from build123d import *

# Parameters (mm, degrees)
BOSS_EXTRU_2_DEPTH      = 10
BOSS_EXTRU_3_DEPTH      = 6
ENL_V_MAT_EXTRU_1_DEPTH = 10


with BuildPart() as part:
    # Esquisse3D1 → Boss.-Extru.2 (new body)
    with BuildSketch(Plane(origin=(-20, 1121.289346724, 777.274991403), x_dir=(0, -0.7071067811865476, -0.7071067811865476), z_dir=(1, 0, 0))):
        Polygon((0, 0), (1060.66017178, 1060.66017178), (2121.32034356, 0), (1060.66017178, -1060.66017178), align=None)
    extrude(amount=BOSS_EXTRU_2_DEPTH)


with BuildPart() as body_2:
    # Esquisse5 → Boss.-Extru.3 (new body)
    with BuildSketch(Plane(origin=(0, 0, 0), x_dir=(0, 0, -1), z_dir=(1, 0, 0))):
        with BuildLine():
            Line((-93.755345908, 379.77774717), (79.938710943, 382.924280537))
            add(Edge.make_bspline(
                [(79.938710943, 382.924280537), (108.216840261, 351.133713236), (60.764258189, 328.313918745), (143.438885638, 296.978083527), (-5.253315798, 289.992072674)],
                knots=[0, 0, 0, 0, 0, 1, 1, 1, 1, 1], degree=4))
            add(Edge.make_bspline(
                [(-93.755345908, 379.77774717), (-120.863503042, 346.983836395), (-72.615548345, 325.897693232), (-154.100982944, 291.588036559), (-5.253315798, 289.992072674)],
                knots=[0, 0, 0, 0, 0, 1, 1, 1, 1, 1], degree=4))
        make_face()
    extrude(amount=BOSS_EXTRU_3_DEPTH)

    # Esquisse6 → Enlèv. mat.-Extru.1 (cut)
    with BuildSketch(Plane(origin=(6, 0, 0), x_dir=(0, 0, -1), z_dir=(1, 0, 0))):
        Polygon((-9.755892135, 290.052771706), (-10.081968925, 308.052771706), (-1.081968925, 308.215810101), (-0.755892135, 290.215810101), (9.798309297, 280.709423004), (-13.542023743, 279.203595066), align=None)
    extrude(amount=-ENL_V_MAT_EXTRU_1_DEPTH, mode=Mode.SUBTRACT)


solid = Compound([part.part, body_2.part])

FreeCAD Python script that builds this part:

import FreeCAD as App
import Part
import Sketcher
from FreeCAD import Vector
Q = App.Units.Quantity


def add_polygon(sketch, points):
    """Adds a closed chain of lines whose ends are joined by coincident constraints."""
    first, n = sketch.GeometryCount, len(points)
    for a, b in zip(points, points[1:] + points[:1]):
        sketch.addGeometry(Part.LineSegment(App.Vector(*a, 0), App.Vector(*b, 0)), False)
    for i in range(n):
        sketch.addConstraint(Sketcher.Constraint("Coincident", first + i, 2, first + (i + 1) % n, 1))

doc = App.newDocument("Part")
body = doc.addObject("PartDesign::Body", "Body")

sketch1 = doc.addObject("Sketcher::SketchObject", "Sketch")
body.addObject(sketch1)
sketch1.AttachmentSupport = (doc.YZ_Plane, [""])
sketch1.MapMode = "FlatFace"
sketch1.AttachmentOffset = App.Placement(Vector(0, 0, -20), App.Rotation())
add_polygon(sketch1, [(1121.289347, -722.725008), (1121.289347, 777.274991), (-378.710653, 777.274991), (-378.710653, -722.725008)])
sketch1.addConstraint(Sketcher.Constraint("Vertical", 0))
sketch1.addConstraint(Sketcher.Constraint("Horizontal", 1))
sketch1.addConstraint(Sketcher.Constraint("Vertical", 2))
sketch1.addConstraint(Sketcher.Constraint("Horizontal", 3))
sketch1.addConstraint(Sketcher.Constraint("Equal", 3, 0))
sketch1.addConstraint(Sketcher.Constraint("DistanceX", 1, 2, 1, 1, 1500.0))
sketch1.addConstraint(Sketcher.Constraint("DistanceY", -1, 1, 0, 2, 777.274991))
sketch1.addConstraint(Sketcher.Constraint("DistanceX", -1, 1, 0, 2, 1121.289347))
pad1 = doc.addObject("PartDesign::Pad", "Pad")
body.addObject(pad1)
pad1.Profile = sketch1
pad1.Length = 10
body2 = doc.addObject("PartDesign::Body", "Body001")

sketch2 = doc.addObject("Sketcher::SketchObject", "Sketch001")
body2.addObject(sketch2)
sketch2.AttachmentSupport = (doc.getObject("YZ_Plane001"), [""])
sketch2.MapMode = "FlatFace"
sketch2.addGeometry(Part.LineSegment(Vector(382.924281, -79.938711, 0), Vector(379.777747, 93.755346, 0)), False)
sketch2.addGeometry(Part.BSplineCurve([Vector(379.777747, 93.755346, 0), Vector(346.983836, 120.863503, 0), Vector(325.897693, 72.615548, 0), Vector(291.588037, 154.100983, 0), Vector(289.992073, 5.253316, 0)], [5, 5], [0, 1], False, 4, [1, 1, 1, 1, 1], False), False)
sketch2.addGeometry(Part.BSplineCurve([Vector(382.924281, -79.938711, 0), Vector(351.133713, -108.21684, 0), Vector(328.313919, -60.764258, 0), Vector(296.978084, -143.438886, 0), Vector(289.992073, 5.253316, 0)], [5, 5], [0, 1], False, 4, [1, 1, 1, 1, 1], False), False)
sketch2.addConstraint(Sketcher.Constraint("Block", 1))
sketch2.addConstraint(Sketcher.Constraint("Block", 2))
sketch2.addConstraint(Sketcher.Constraint("Coincident", 0, 2, 1, 1))
sketch2.addConstraint(Sketcher.Constraint("Coincident", 2, 1, 0, 1))
pad2 = doc.addObject("PartDesign::Pad", "Pad001")
body2.addObject(pad2)
pad2.Profile = sketch2
pad2.Length = 6

sketch3 = doc.addObject("Sketcher::SketchObject", "Sketch002")
body2.addObject(sketch3)
sketch3.AttachmentSupport = (doc.getObject("YZ_Plane001"), [""])
sketch3.MapMode = "FlatFace"
sketch3.AttachmentOffset = App.Placement(Vector(0, 0, 6), App.Rotation())
add_polygon(sketch3, [(308.052772, 10.081969), (290.052772, 9.755892), (279.203595, 13.542024), (280.709423, -9.798309), (290.21581, 0.755892), (308.21581, 1.081969)])
sketch3.addConstraint(Sketcher.Constraint("Parallel", 0, 4))
sketch3.addConstraint(Sketcher.Constraint("Perpendicular", 4, 5))
sketch3.addConstraint(Sketcher.Constraint("Equal", 0, 4))
sketch3.addConstraint(Sketcher.Constraint("DistanceY", 3, 2, 0, 2, 9.0))
sketch3.addConstraint(Sketcher.Constraint("DistanceX", 3, 2, 4, 2, 18.0))
sketch3.addConstraint(Sketcher.Constraint("Angle", 3, Q("47.989984 deg")))
sketch3.addConstraint(Sketcher.Constraint("DistanceY", 2, 2, 0, 2, 19.554201))
sketch3.addConstraint(Sketcher.Constraint("Distance", 1, 11.490841))
sketch3.addConstraint(Sketcher.Constraint("DistanceX", -1, 1, 0, 2, 290.052772))
sketch3.addConstraint(Sketcher.Constraint("DistanceY", 2, 2, -1, 1, 9.798309))
sketch3.addConstraint(Sketcher.Constraint("DistanceX", -1, 1, 3, 2, 290.21581))
sketch3.addConstraint(Sketcher.Constraint("DistanceY", 0, 2, 1, 2, 3.786132))
pocket1 = doc.addObject("PartDesign::Pocket", "Pocket")
body2.addObject(pocket1)
pocket1.Profile = sketch3
pocket1.Length = 10

doc.recompute()
